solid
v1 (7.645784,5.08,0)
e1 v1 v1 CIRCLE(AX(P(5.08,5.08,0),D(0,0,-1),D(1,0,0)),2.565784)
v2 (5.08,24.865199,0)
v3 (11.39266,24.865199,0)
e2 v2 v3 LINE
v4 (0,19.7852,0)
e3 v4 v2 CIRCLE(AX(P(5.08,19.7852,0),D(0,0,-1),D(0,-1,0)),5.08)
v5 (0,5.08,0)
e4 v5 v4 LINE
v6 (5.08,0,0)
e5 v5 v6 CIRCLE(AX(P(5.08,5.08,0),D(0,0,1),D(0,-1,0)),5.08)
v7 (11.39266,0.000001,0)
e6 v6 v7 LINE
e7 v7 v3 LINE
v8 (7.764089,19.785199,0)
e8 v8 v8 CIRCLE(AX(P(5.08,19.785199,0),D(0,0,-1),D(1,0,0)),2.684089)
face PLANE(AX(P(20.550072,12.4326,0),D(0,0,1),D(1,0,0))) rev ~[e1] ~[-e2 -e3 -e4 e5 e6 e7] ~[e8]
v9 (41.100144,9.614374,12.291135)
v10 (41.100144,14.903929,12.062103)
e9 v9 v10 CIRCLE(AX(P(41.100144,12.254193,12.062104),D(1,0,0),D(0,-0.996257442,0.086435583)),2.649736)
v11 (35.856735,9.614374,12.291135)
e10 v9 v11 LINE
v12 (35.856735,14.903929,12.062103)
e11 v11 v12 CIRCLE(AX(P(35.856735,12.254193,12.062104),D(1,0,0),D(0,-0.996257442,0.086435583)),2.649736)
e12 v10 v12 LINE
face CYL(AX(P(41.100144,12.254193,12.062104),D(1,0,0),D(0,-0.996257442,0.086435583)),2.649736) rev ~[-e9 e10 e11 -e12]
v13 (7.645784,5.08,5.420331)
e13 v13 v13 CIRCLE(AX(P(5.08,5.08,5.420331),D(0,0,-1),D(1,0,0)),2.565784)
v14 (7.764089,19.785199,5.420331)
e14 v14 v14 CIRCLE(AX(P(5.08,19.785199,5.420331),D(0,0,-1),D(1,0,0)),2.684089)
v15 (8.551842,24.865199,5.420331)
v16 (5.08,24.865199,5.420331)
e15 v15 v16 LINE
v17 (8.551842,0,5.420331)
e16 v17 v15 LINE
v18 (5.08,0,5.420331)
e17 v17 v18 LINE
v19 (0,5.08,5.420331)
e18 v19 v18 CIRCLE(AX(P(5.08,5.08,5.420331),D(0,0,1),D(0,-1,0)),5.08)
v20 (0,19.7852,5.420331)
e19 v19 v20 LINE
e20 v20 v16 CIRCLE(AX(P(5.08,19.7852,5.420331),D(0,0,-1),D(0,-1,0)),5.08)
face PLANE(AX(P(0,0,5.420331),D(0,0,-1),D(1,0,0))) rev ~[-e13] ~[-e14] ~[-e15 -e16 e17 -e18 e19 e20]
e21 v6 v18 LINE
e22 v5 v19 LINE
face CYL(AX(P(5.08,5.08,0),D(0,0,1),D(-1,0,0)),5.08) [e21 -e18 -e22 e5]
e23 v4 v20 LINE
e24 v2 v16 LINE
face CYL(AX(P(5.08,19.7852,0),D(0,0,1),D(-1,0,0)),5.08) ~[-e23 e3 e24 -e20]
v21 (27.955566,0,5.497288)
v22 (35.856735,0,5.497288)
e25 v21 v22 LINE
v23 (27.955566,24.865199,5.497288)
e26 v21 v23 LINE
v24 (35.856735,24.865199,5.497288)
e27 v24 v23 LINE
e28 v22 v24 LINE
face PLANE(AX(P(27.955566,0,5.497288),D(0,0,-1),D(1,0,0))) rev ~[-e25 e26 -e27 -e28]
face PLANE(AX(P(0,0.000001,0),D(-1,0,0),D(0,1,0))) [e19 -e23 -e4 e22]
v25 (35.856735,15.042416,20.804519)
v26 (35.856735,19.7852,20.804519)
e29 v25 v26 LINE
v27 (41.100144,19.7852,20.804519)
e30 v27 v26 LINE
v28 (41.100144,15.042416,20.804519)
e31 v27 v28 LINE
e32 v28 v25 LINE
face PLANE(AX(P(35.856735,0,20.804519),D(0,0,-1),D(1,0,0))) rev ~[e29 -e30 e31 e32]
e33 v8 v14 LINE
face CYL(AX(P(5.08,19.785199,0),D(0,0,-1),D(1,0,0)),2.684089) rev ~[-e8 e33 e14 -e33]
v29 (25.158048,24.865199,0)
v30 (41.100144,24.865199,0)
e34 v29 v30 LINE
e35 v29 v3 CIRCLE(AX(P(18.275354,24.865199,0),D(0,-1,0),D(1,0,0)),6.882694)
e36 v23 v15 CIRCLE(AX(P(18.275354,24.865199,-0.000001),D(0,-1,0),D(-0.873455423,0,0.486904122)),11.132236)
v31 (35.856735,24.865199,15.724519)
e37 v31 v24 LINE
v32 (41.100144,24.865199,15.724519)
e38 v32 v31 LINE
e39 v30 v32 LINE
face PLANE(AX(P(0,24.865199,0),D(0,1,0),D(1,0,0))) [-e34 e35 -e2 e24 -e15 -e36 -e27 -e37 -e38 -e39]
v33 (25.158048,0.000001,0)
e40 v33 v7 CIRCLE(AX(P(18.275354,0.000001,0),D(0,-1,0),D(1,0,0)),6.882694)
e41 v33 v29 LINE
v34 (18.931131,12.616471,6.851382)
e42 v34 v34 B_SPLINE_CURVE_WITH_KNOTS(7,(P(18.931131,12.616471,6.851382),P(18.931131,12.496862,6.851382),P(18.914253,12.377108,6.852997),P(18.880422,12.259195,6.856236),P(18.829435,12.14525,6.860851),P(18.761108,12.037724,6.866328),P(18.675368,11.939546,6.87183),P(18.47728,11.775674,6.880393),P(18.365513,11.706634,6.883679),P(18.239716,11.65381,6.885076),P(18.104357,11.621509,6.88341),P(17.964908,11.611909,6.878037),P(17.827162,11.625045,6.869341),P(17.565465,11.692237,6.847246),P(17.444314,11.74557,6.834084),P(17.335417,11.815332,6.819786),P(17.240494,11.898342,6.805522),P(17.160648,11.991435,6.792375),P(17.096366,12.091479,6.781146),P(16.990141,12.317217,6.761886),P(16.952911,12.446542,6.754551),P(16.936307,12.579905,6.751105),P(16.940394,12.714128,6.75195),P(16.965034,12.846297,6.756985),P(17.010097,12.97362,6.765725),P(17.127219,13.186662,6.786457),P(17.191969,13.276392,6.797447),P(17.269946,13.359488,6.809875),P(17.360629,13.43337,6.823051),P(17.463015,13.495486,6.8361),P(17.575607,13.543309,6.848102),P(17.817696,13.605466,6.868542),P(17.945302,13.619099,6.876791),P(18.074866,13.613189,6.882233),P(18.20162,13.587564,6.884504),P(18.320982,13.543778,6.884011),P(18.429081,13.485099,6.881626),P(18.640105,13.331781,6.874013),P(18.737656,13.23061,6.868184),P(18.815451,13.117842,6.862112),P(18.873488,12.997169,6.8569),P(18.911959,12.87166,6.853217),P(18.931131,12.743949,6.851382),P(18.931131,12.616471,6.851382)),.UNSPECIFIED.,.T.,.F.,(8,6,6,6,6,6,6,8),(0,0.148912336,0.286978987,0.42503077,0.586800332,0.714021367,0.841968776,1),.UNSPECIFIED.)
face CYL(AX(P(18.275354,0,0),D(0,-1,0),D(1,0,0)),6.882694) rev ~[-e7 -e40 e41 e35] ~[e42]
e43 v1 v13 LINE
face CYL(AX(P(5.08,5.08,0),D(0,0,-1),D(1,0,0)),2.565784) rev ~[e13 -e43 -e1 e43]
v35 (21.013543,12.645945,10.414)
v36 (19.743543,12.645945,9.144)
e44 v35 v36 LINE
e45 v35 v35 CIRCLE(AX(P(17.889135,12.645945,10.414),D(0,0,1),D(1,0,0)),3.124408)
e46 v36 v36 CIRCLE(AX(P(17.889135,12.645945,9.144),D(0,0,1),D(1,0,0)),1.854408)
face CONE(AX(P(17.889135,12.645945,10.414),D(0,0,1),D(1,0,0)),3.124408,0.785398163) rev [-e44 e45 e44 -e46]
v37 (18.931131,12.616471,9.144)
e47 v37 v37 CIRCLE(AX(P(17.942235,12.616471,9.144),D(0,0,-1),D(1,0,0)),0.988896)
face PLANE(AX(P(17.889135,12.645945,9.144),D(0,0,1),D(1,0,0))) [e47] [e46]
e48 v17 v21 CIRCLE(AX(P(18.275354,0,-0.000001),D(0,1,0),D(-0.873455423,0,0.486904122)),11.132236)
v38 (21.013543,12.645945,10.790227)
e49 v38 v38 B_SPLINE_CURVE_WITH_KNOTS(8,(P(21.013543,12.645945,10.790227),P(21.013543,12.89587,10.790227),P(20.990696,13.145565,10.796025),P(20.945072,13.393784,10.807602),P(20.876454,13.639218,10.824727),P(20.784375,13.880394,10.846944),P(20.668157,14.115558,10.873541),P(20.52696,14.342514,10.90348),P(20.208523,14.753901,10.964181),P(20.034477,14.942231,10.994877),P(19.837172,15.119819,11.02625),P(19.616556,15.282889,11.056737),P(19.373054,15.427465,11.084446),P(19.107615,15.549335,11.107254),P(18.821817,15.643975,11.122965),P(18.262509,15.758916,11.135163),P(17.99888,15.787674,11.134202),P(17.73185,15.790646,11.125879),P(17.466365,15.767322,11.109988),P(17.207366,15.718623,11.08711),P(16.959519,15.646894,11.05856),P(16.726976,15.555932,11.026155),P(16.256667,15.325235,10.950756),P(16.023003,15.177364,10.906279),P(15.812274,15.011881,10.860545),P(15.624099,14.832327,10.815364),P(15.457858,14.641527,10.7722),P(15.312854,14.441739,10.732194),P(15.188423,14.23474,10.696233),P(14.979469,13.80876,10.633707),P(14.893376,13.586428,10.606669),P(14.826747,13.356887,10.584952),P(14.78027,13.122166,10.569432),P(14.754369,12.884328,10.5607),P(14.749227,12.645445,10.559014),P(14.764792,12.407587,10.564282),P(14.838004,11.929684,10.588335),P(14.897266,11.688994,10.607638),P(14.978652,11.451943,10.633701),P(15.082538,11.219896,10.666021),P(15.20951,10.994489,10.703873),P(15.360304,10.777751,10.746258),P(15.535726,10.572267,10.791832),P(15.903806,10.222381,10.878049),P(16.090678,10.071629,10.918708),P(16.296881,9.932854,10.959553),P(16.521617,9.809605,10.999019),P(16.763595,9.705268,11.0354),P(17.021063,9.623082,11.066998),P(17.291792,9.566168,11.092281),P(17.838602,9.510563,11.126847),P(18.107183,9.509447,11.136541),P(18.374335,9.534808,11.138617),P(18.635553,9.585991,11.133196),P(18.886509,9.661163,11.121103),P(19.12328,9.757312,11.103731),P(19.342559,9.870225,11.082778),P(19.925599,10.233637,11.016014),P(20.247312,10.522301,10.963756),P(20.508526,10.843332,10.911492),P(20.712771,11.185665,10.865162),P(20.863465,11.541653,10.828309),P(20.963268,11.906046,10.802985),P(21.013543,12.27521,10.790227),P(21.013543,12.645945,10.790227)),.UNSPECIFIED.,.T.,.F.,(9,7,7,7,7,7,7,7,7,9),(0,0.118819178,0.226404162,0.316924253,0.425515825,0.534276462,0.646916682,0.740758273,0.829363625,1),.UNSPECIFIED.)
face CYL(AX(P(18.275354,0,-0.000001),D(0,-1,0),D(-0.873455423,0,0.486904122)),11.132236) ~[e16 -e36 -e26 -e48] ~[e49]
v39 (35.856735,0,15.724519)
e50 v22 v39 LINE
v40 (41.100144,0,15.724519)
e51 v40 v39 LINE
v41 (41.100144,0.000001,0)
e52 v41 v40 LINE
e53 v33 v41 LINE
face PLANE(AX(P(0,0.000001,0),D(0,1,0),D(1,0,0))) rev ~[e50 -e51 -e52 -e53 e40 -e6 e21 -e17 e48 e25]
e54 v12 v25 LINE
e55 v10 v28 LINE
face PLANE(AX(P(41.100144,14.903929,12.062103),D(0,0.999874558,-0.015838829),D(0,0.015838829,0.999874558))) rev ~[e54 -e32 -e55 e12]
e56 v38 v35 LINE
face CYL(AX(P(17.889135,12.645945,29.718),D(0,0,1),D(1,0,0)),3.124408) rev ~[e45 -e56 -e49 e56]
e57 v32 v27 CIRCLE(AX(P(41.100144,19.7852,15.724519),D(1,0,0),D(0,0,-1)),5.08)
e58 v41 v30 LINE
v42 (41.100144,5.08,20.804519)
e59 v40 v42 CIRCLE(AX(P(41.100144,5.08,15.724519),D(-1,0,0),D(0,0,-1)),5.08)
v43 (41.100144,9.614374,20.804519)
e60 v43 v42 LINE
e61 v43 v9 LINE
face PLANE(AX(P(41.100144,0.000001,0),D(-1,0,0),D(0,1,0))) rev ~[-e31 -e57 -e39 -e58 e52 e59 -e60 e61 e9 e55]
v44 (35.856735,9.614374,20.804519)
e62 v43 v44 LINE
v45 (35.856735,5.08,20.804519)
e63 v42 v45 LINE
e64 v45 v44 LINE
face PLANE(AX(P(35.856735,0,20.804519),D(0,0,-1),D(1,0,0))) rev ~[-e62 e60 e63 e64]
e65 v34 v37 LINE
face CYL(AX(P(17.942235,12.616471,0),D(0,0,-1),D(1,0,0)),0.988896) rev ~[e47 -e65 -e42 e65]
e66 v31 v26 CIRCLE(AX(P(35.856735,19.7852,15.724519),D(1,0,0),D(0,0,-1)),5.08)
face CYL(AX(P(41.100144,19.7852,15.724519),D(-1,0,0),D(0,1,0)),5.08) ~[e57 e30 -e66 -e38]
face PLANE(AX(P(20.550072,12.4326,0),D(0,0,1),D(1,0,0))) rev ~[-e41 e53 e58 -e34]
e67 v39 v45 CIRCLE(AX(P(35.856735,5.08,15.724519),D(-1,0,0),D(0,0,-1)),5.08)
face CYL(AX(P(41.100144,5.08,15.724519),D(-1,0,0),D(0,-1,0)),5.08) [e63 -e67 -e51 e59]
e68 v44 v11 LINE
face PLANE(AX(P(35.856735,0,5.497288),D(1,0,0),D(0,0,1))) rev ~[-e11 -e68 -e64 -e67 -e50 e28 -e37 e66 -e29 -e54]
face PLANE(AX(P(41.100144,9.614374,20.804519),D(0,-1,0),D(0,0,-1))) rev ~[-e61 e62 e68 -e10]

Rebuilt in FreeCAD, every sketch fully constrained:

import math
import FreeCAD as App
import Part
import Sketcher
Q = App.Units.Quantity


def edges_at(feature, points):
    """Names of the edges that pass closest to the given points."""
    edges = feature.Shape.Edges
    near = lambda p: min(range(len(edges)), key=lambda i: edges[i].distToShape(Part.Vertex(*p))[0])
    return sorted({f"Edge{near(p) + 1}" for p in points})

doc = App.newDocument("Part")
body = doc.addObject("PartDesign::Body", "Body")

sketch1 = body.newObject("Sketcher::SketchObject", "Sketch")
sketch1.AttachmentSupport = (doc.getObject("XY_Plane"), [""])
sketch1.MapMode = "FlatFace"
sketch1.addGeometry(Part.LineSegment(App.Vector(0, 25, 0), App.Vector(0, 0, 0)), False)
sketch1.addGeometry(Part.LineSegment(App.Vector(0, 0, 0), App.Vector(41, 0, 0)), False)
sketch1.addGeometry(Part.LineSegment(App.Vector(41, 0, 0), App.Vector(41, 25, 0)), False)
sketch1.addGeometry(Part.LineSegment(App.Vector(41, 25, 0), App.Vector(0, 25, 0)), False)
sketch1.addConstraint(Sketcher.Constraint("Coincident", 0, 2, 1, 1))
sketch1.addConstraint(Sketcher.Constraint("Coincident", 1, 2, 2, 1))
sketch1.addConstraint(Sketcher.Constraint("Coincident", 2, 2, 3, 1))
sketch1.addConstraint(Sketcher.Constraint("Coincident", 3, 2, 0, 1))
sketch1.addConstraint(Sketcher.Constraint("Vertical", 0))
sketch1.addConstraint(Sketcher.Constraint("Horizontal", 1))
sketch1.addConstraint(Sketcher.Constraint("Vertical", 2))
sketch1.addConstraint(Sketcher.Constraint("Horizontal", 3))
sketch1.addConstraint(Sketcher.Constraint("Coincident", 0, 2, -1, 1))
sketch1.addConstraint(Sketcher.Constraint("DistanceY", 0, 2, 0, 1, 24.865199))
sketch1.addConstraint(Sketcher.Constraint("DistanceX", 1, 1, 1, 2, 41.100144))
pad1 = body.newObject("PartDesign::Pad", "Pad")
pad1.Profile = sketch1
pad1.Length = Q("1.06 in")

sketch2 = body.newObject("Sketcher::SketchObject", "Sketch001")
sketch2.AttachmentSupport = (doc.getObject("XZ_Plane"), [""])
sketch2.MapMode = "FlatFace"
sketch2.addGeometry(Part.LineSegment(App.Vector(11, 0, 0), App.Vector(25, 0, 0)), False)
sketch2.addGeometry(Part.ArcOfCircle(Part.Circle(App.Vector(18, 0, 0), App.Vector(0, 0, 1), 7), math.radians(0), math.radians(180)), False)
sketch2.addGeometry(Part.ArcOfCircle(Part.Circle(App.Vector(18, 0, 0), App.Vector(0, 0, 1), 11), math.radians(30), math.radians(151)), False)
sketch2.addGeometry(Part.LineSegment(App.Vector(28, 5, 0), App.Vector(36, 5, 0)), False)
sketch2.addGeometry(Part.LineSegment(App.Vector(36, 5, 0), App.Vector(36, 21, 0)), False)
sketch2.addGeometry(Part.LineSegment(App.Vector(36, 21, 0), App.Vector(43, 21, 0)), False)
sketch2.addGeometry(Part.LineSegment(App.Vector(43, 21, 0), App.Vector(42, 33, 0)), False)
sketch2.addGeometry(Part.LineSegment(App.Vector(42, 33, 0), App.Vector(-5, 33, 0)), False)
sketch2.addGeometry(Part.LineSegment(App.Vector(-5, 33, 0), App.Vector(0, 5, 0)), False)
sketch2.addGeometry(Part.LineSegment(App.Vector(0, 5, 0), App.Vector(9, 5, 0)), False)
sketch2.addConstraint(Sketcher.Constraint("Coincident", 0, 1, 1, 2))
sketch2.addConstraint(Sketcher.Constraint("Coincident", 1, 1, 0, 2))
sketch2.addConstraint(Sketcher.Constraint("Coincident", 2, 1, 3, 1))
sketch2.addConstraint(Sketcher.Constraint("Coincident", 3, 2, 4, 1))
sketch2.addConstraint(Sketcher.Constraint("Coincident", 4, 2, 5, 1))
sketch2.addConstraint(Sketcher.Constraint("Coincident", 5, 2, 6, 1))
sketch2.addConstraint(Sketcher.Constraint("Coincident", 6, 2, 7, 1))
sketch2.addConstraint(Sketcher.Constraint("Coincident", 7, 2, 8, 1))
sketch2.addConstraint(Sketcher.Constraint("Coincident", 8, 2, 9, 1))
sketch2.addConstraint(Sketcher.Constraint("Coincident", 9, 2, 2, 2))
sketch2.addConstraint(Sketcher.Constraint("Horizontal", 0))
sketch2.addConstraint(Sketcher.Constraint("Horizontal", 3))
sketch2.addConstraint(Sketcher.Constraint("Vertical", 4))
sketch2.addConstraint(Sketcher.Constraint("Horizontal", 5))
sketch2.addConstraint(Sketcher.Constraint("Horizontal", 7))
sketch2.addConstraint(Sketcher.Constraint("Horizontal", 9))
sketch2.addConstraint(Sketcher.Constraint("Coincident", 2, 3, 1, 3))
sketch2.addConstraint(Sketcher.Constraint("PointOnObject", 1, 3, -1))
sketch2.addConstraint(Sketcher.Constraint("PointOnObject", 0, 1, -1))
sketch2.addConstraint(Sketcher.Constraint("PointOnObject", 8, 2, -2))
sketch2.addConstraint(Sketcher.Constraint("Radius", 1, 6.882694))
sketch2.addConstraint(Sketcher.Constraint("Radius", 2, 11.132236))
sketch2.addConstraint(Sketcher.Constraint("DistanceX", 3, 1, 3, 2, 7.901169))
sketch2.addConstraint(Sketcher.Constraint("DistanceX", 7, 2, 7, 1, 46.88368))
sketch2.addConstraint(Sketcher.Constraint("DistanceY", 4, 1, 4, 2, 15.307231))
sketch2.addConstraint(Sketcher.Constraint("DistanceX", 1, 1, 6, 2, 17.0824))
sketch2.addConstraint(Sketcher.Constraint("DistanceX", 7, 2, 2, 1, 32.598798))
sketch2.addConstraint(Sketcher.Constraint("Distance", 8, 27.707071))
sketch2.addConstraint(Sketcher.Constraint("DistanceX", 5, 1, 5, 2, 7.325575))
sketch2.addConstraint(Sketcher.Constraint("DistanceX", 9, 1, 9, 2, 8.551842))
sketch2.addConstraint(Sketcher.Constraint("DistanceX", -1, 1, 0, 1, 11.39266))
pocket1 = body.newObject("PartDesign::Pocket", "Pocket")
pocket1.Profile = sketch2
pocket1.Length = Q("1.3 in")

sketch3 = body.newObject("Sketcher::SketchObject", "Sketch002")
sketch3.AttachmentSupport = (doc.getObject("YZ_Plane"), [""])
sketch3.MapMode = "FlatFace"
sketch3.AttachmentOffset = App.Placement(App.Vector(0, 0, 41.100144), App.Rotation())
sketch3.addGeometry(Part.LineSegment(App.Vector(9.6, 20.8, 0), App.Vector(9.6, 12.3, 0)), False)
sketch3.addGeometry(Part.ArcOfCircle(Part.Circle(App.Vector(12.3, 12.1, 0), App.Vector(0, 0, 1), 2.6), math.radians(175), math.radians(360)), False)
sketch3.addGeometry(Part.LineSegment(App.Vector(14.9, 12.1, 0), App.Vector(15, 20.8, 0)), False)
sketch3.addGeometry(Part.LineSegment(App.Vector(15, 20.8, 0), App.Vector(9.6, 20.8, 0)), False)
sketch3.addConstraint(Sketcher.Constraint("Coincident", 0, 2, 1, 1))
sketch3.addConstraint(Sketcher.Constraint("Coincident", 1, 2, 2, 1))
sketch3.addConstraint(Sketcher.Constraint("Coincident", 2, 2, 3, 1))
sketch3.addConstraint(Sketcher.Constraint("Coincident", 3, 2, 0, 1))
sketch3.addConstraint(Sketcher.Constraint("Vertical", 0))
sketch3.addConstraint(Sketcher.Constraint("Horizontal", 3))
sketch3.addConstraint(Sketcher.Constraint("Radius", 1, 2.649736))
sketch3.addConstraint(Sketcher.Constraint("DistanceX", 3, 2, 3, 1, 5.428042))
sketch3.addConstraint(Sketcher.Constraint("DistanceY", 0, 2, 0, 1, 8.513384))
sketch3.addConstraint(Sketcher.Constraint("DistanceX", -1, 1, 1, 2, 14.903929))
sketch3.addConstraint(Sketcher.Constraint("DistanceY", -1, 1, 2, 2, 20.804519))
sketch3.addConstraint(Sketcher.Constraint("DistanceX", 0, 2, 1, 3, 2.639819))
sketch3.addConstraint(Sketcher.Constraint("Distance", 2, 8.743513))
pocket2 = body.newObject("PartDesign::Pocket", "Pocket001")
pocket2.Profile = sketch3
pocket2.Length = Q("0.39 in")
doc.recompute()

fillet = body.newObject("PartDesign::Fillet", "Fillet")
fillet.Base = (pocket2, edges_at(pocket2, [
    (38.478, 0, 20.805),
    (38.478, 24.865, 20.805),
    (0, 24.865, 2.71),
    (0, 0, 2.71),
]))
fillet.Radius = Q("0.2 in")

sketch4 = body.newObject("Sketcher::SketchObject", "Sketch003")
sketch4.AttachmentSupport = (doc.getObject("XY_Plane"), [""])
sketch4.MapMode = "FlatFace"
sketch4.addGeometry(Part.Circle(App.Vector(5.1, 5.1, 0), App.Vector(0, 0, 1), 2.6), False)
sketch4.addGeometry(Part.Circle(App.Vector(5.1, 19.8, 0), App.Vector(0, 0, 1), 2.7), False)
sketch4.addGeometry(Part.Circle(App.Vector(17.9, 12.6, 0), App.Vector(0, 0, 1), 1), False)
sketch4.addConstraint(Sketcher.Constraint("Vertical", 0, 3, 1, 3))
sketch4.addConstraint(Sketcher.Constraint("DistanceX", -1, 1, 0, 3, Q("0.2 in")))
sketch4.addConstraint(Sketcher.Constraint("DistanceY", -1, 1, 0, 3, Q("0.2 in")))
sketch4.addConstraint(Sketcher.Constraint("Diameter", 1, 5.368178))
sketch4.addConstraint(Sketcher.Constraint("Diameter", 0, 5.131568))
sketch4.addConstraint(Sketcher.Constraint("Diameter", 2, 1.977792))
sketch4.addConstraint(Sketcher.Constraint("DistanceY", -1, 1, 1, 3, 19.785199))
sketch4.addConstraint(Sketcher.Constraint("DistanceY", -1, 1, 2, 3, 12.616471))
sketch4.addConstraint(Sketcher.Constraint("DistanceX", -1, 1, 2, 3, 17.942235))
pocket3 = body.newObject("PartDesign::Pocket", "Pocket002")
pocket3.Profile = sketch4
pocket3.Length = Q("1 in")
pocket3.Reversed = True

sketch5 = body.newObject("Sketcher::SketchObject", "Sketch004")
sketch5.AttachmentSupport = (doc.getObject("XY_Plane"), [""])
sketch5.MapMode = "FlatFace"
sketch5.AttachmentOffset = App.Placement(App.Vector(0, 0, 1.17 * 25.4), App.Rotation())
sketch5.addGeometry(Part.Circle(App.Vector(17.9, 12.6, 0), App.Vector(0, 0, 1), 3.1), False)
sketch5.addConstraint(Sketcher.Constraint("Diameter", 0, 6.248816))
sketch5.addConstraint(Sketcher.Constraint("DistanceX", -1, 1, 0, 3, 17.889135))
sketch5.addConstraint(Sketcher.Constraint("DistanceY", -1, 1, 0, 3, 12.645945))
pocket4 = body.newObject("PartDesign::Pocket", "Pocket003")
pocket4.Profile = sketch5
pocket4.Length = Q("0.81 in")
doc.recompute()

chamfer = body.newObject("PartDesign::Chamfer", "Chamfer")
chamfer.Base = (pocket4, edges_at(pocket4, [(14.765, 12.646, 9.144)]))
chamfer.Size = Q("0.05 in")

doc.recompute()
